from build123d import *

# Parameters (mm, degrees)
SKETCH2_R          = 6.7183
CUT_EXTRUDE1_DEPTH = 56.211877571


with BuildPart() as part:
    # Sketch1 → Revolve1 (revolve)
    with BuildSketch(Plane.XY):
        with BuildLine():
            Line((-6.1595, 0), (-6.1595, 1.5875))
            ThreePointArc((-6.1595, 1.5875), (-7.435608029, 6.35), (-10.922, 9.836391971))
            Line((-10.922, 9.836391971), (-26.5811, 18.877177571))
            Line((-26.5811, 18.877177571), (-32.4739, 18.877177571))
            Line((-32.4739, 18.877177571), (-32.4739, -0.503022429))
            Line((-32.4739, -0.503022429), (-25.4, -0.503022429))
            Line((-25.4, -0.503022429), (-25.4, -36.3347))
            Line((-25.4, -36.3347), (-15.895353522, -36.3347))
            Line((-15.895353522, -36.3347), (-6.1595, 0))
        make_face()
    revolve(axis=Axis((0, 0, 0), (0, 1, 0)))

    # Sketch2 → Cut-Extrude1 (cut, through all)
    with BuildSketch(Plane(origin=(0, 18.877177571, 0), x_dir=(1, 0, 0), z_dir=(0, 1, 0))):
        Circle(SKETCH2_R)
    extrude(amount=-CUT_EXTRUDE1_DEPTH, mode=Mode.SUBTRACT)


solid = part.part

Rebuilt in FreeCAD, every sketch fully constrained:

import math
import FreeCAD as App
import Part
import Sketcher

V = App.Vector
Q = App.Units.Quantity

doc = App.newDocument("Part")
body = doc.addObject("PartDesign::Body", "Body")

sketch1 = body.newObject("Sketcher::SketchObject", "Sketch")
sketch1.AttachmentSupport = (doc.getObject("XY_Plane"), [""])
sketch1.MapMode = "FlatFace"
sketch1.addGeometry(Part.LineSegment(V(-6.1595, 0, 0), V(-6.1595, 1.5875, 0)), False)
sketch1.addGeometry(Part.ArcOfCircle(Part.Circle(V(-15.6845, 1.5875, 0), V(0, 0, 1), 9.525), math.radians(0), math.radians(60)), False)
sketch1.addGeometry(Part.LineSegment(V(-10.922, 9.836392, 0), V(-26.5811, 18.877178, 0)), False)
sketch1.addGeometry(Part.LineSegment(V(-26.5811, 18.877178, 0), V(-32.4739, 18.877178, 0)), False)
sketch1.addGeometry(Part.LineSegment(V(-32.4739, 18.877178, 0), V(-32.4739, -0.503022, 0)), False)
sketch1.addGeometry(Part.LineSegment(V(-32.4739, -0.503022, 0), V(-25.4, -0.503022, 0)), False)
sketch1.addGeometry(Part.LineSegment(V(-25.4, -0.503022, 0), V(-25.4, -36.3347, 0)), False)
sketch1.addGeometry(Part.LineSegment(V(-25.4, -36.3347, 0), V(-15.895354, -36.3347, 0)), False)
sketch1.addGeometry(Part.LineSegment(V(-15.895354, -36.3347, 0), V(-6.1595, 0, 0)), False)
sketch1.addConstraint(Sketcher.Constraint("Tangent", 0, 2, 1, 1))
sketch1.addConstraint(Sketcher.Constraint("Tangent", 1, 2, 2, 1))
sketch1.addConstraint(Sketcher.Constraint("Coincident", 2, 2, 3, 1))
sketch1.addConstraint(Sketcher.Constraint("Coincident", 3, 2, 4, 1))
sketch1.addConstraint(Sketcher.Constraint("Coincident", 4, 2, 5, 1))
sketch1.addConstraint(Sketcher.Constraint("Coincident", 5, 2, 6, 1))
sketch1.addConstraint(Sketcher.Constraint("Coincident", 6, 2, 7, 1))
sketch1.addConstraint(Sketcher.Constraint("Coincident", 7, 2, 8, 1))
sketch1.addConstraint(Sketcher.Constraint("Coincident", 8, 2, 0, 1))
sketch1.addConstraint(Sketcher.Constraint("Vertical", 0))
sketch1.addConstraint(Sketcher.Constraint("Horizontal", 3))
sketch1.addConstraint(Sketcher.Constraint("Vertical", 4))
sketch1.addConstraint(Sketcher.Constraint("Horizontal", 5))
sketch1.addConstraint(Sketcher.Constraint("Vertical", 6))
sketch1.addConstraint(Sketcher.Constraint("Horizontal", 7))
sketch1.addConstraint(Sketcher.Constraint("PointOnObject", 8, 2, -1))
sketch1.addConstraint(Sketcher.Constraint("DistanceX", 5, 2, -1, 1, Q("1 in")))
sketch1.addConstraint(Sketcher.Constraint("Angle", 2, Q("150 deg")))
sketch1.addConstraint(Sketcher.Constraint("Angle", 8, Q("75 deg")))
sketch1.addConstraint(Sketcher.Constraint("Radius", 1, Q("0.375 in")))
sketch1.addConstraint(Sketcher.Constraint("DistanceX", 3, 2, 3, 1, Q("0.232 in")))
sketch1.addConstraint(Sketcher.Constraint("DistanceY", 0, 1, 0, 2, Q("0.0625 in")))
sketch1.addConstraint(Sketcher.Constraint("DistanceY", 4, 2, 4, 1, Q("0.763 in")))
sketch1.addConstraint(Sketcher.Constraint("DistanceX", 1, 2, -1, 1, Q("0.43 in")))
sketch1.addConstraint(Sketcher.Constraint("DistanceX", 5, 1, 5, 2, Q("0.2785 in")))
sketch1.addConstraint(Sketcher.Constraint("DistanceY", 6, 2, 1, 3, Q("1.493 in")))
revolution = body.newObject("PartDesign::Revolution", "Revolution")
revolution.Profile = sketch1
revolution.ReferenceAxis = (sketch1, ["V_Axis"])
revolution.Angle = 360

sketch2 = body.newObject("Sketcher::SketchObject", "Sketch001")
sketch2.AttachmentSupport = (doc.getObject("XZ_Plane"), [""])
sketch2.MapMode = "FlatFace"
sketch2.AttachmentOffset = App.Placement(V(0, 0, -18.877178), App.Rotation())
sketch2.addGeometry(Part.Circle(V(0, 0, 0), V(0, 0, 1), 6.7183), False)
sketch2.addConstraint(Sketcher.Constraint("Coincident", 0, 3, -1, 1))
sketch2.addConstraint(Sketcher.Constraint("Diameter", 0, Q("0.529 in")))
pocket1 = body.newObject("PartDesign::Pocket", "Pocket")
pocket1.Profile = sketch2
pocket1.Type = "ThroughAll"
pocket1.Reversed = True

doc.recompute()
